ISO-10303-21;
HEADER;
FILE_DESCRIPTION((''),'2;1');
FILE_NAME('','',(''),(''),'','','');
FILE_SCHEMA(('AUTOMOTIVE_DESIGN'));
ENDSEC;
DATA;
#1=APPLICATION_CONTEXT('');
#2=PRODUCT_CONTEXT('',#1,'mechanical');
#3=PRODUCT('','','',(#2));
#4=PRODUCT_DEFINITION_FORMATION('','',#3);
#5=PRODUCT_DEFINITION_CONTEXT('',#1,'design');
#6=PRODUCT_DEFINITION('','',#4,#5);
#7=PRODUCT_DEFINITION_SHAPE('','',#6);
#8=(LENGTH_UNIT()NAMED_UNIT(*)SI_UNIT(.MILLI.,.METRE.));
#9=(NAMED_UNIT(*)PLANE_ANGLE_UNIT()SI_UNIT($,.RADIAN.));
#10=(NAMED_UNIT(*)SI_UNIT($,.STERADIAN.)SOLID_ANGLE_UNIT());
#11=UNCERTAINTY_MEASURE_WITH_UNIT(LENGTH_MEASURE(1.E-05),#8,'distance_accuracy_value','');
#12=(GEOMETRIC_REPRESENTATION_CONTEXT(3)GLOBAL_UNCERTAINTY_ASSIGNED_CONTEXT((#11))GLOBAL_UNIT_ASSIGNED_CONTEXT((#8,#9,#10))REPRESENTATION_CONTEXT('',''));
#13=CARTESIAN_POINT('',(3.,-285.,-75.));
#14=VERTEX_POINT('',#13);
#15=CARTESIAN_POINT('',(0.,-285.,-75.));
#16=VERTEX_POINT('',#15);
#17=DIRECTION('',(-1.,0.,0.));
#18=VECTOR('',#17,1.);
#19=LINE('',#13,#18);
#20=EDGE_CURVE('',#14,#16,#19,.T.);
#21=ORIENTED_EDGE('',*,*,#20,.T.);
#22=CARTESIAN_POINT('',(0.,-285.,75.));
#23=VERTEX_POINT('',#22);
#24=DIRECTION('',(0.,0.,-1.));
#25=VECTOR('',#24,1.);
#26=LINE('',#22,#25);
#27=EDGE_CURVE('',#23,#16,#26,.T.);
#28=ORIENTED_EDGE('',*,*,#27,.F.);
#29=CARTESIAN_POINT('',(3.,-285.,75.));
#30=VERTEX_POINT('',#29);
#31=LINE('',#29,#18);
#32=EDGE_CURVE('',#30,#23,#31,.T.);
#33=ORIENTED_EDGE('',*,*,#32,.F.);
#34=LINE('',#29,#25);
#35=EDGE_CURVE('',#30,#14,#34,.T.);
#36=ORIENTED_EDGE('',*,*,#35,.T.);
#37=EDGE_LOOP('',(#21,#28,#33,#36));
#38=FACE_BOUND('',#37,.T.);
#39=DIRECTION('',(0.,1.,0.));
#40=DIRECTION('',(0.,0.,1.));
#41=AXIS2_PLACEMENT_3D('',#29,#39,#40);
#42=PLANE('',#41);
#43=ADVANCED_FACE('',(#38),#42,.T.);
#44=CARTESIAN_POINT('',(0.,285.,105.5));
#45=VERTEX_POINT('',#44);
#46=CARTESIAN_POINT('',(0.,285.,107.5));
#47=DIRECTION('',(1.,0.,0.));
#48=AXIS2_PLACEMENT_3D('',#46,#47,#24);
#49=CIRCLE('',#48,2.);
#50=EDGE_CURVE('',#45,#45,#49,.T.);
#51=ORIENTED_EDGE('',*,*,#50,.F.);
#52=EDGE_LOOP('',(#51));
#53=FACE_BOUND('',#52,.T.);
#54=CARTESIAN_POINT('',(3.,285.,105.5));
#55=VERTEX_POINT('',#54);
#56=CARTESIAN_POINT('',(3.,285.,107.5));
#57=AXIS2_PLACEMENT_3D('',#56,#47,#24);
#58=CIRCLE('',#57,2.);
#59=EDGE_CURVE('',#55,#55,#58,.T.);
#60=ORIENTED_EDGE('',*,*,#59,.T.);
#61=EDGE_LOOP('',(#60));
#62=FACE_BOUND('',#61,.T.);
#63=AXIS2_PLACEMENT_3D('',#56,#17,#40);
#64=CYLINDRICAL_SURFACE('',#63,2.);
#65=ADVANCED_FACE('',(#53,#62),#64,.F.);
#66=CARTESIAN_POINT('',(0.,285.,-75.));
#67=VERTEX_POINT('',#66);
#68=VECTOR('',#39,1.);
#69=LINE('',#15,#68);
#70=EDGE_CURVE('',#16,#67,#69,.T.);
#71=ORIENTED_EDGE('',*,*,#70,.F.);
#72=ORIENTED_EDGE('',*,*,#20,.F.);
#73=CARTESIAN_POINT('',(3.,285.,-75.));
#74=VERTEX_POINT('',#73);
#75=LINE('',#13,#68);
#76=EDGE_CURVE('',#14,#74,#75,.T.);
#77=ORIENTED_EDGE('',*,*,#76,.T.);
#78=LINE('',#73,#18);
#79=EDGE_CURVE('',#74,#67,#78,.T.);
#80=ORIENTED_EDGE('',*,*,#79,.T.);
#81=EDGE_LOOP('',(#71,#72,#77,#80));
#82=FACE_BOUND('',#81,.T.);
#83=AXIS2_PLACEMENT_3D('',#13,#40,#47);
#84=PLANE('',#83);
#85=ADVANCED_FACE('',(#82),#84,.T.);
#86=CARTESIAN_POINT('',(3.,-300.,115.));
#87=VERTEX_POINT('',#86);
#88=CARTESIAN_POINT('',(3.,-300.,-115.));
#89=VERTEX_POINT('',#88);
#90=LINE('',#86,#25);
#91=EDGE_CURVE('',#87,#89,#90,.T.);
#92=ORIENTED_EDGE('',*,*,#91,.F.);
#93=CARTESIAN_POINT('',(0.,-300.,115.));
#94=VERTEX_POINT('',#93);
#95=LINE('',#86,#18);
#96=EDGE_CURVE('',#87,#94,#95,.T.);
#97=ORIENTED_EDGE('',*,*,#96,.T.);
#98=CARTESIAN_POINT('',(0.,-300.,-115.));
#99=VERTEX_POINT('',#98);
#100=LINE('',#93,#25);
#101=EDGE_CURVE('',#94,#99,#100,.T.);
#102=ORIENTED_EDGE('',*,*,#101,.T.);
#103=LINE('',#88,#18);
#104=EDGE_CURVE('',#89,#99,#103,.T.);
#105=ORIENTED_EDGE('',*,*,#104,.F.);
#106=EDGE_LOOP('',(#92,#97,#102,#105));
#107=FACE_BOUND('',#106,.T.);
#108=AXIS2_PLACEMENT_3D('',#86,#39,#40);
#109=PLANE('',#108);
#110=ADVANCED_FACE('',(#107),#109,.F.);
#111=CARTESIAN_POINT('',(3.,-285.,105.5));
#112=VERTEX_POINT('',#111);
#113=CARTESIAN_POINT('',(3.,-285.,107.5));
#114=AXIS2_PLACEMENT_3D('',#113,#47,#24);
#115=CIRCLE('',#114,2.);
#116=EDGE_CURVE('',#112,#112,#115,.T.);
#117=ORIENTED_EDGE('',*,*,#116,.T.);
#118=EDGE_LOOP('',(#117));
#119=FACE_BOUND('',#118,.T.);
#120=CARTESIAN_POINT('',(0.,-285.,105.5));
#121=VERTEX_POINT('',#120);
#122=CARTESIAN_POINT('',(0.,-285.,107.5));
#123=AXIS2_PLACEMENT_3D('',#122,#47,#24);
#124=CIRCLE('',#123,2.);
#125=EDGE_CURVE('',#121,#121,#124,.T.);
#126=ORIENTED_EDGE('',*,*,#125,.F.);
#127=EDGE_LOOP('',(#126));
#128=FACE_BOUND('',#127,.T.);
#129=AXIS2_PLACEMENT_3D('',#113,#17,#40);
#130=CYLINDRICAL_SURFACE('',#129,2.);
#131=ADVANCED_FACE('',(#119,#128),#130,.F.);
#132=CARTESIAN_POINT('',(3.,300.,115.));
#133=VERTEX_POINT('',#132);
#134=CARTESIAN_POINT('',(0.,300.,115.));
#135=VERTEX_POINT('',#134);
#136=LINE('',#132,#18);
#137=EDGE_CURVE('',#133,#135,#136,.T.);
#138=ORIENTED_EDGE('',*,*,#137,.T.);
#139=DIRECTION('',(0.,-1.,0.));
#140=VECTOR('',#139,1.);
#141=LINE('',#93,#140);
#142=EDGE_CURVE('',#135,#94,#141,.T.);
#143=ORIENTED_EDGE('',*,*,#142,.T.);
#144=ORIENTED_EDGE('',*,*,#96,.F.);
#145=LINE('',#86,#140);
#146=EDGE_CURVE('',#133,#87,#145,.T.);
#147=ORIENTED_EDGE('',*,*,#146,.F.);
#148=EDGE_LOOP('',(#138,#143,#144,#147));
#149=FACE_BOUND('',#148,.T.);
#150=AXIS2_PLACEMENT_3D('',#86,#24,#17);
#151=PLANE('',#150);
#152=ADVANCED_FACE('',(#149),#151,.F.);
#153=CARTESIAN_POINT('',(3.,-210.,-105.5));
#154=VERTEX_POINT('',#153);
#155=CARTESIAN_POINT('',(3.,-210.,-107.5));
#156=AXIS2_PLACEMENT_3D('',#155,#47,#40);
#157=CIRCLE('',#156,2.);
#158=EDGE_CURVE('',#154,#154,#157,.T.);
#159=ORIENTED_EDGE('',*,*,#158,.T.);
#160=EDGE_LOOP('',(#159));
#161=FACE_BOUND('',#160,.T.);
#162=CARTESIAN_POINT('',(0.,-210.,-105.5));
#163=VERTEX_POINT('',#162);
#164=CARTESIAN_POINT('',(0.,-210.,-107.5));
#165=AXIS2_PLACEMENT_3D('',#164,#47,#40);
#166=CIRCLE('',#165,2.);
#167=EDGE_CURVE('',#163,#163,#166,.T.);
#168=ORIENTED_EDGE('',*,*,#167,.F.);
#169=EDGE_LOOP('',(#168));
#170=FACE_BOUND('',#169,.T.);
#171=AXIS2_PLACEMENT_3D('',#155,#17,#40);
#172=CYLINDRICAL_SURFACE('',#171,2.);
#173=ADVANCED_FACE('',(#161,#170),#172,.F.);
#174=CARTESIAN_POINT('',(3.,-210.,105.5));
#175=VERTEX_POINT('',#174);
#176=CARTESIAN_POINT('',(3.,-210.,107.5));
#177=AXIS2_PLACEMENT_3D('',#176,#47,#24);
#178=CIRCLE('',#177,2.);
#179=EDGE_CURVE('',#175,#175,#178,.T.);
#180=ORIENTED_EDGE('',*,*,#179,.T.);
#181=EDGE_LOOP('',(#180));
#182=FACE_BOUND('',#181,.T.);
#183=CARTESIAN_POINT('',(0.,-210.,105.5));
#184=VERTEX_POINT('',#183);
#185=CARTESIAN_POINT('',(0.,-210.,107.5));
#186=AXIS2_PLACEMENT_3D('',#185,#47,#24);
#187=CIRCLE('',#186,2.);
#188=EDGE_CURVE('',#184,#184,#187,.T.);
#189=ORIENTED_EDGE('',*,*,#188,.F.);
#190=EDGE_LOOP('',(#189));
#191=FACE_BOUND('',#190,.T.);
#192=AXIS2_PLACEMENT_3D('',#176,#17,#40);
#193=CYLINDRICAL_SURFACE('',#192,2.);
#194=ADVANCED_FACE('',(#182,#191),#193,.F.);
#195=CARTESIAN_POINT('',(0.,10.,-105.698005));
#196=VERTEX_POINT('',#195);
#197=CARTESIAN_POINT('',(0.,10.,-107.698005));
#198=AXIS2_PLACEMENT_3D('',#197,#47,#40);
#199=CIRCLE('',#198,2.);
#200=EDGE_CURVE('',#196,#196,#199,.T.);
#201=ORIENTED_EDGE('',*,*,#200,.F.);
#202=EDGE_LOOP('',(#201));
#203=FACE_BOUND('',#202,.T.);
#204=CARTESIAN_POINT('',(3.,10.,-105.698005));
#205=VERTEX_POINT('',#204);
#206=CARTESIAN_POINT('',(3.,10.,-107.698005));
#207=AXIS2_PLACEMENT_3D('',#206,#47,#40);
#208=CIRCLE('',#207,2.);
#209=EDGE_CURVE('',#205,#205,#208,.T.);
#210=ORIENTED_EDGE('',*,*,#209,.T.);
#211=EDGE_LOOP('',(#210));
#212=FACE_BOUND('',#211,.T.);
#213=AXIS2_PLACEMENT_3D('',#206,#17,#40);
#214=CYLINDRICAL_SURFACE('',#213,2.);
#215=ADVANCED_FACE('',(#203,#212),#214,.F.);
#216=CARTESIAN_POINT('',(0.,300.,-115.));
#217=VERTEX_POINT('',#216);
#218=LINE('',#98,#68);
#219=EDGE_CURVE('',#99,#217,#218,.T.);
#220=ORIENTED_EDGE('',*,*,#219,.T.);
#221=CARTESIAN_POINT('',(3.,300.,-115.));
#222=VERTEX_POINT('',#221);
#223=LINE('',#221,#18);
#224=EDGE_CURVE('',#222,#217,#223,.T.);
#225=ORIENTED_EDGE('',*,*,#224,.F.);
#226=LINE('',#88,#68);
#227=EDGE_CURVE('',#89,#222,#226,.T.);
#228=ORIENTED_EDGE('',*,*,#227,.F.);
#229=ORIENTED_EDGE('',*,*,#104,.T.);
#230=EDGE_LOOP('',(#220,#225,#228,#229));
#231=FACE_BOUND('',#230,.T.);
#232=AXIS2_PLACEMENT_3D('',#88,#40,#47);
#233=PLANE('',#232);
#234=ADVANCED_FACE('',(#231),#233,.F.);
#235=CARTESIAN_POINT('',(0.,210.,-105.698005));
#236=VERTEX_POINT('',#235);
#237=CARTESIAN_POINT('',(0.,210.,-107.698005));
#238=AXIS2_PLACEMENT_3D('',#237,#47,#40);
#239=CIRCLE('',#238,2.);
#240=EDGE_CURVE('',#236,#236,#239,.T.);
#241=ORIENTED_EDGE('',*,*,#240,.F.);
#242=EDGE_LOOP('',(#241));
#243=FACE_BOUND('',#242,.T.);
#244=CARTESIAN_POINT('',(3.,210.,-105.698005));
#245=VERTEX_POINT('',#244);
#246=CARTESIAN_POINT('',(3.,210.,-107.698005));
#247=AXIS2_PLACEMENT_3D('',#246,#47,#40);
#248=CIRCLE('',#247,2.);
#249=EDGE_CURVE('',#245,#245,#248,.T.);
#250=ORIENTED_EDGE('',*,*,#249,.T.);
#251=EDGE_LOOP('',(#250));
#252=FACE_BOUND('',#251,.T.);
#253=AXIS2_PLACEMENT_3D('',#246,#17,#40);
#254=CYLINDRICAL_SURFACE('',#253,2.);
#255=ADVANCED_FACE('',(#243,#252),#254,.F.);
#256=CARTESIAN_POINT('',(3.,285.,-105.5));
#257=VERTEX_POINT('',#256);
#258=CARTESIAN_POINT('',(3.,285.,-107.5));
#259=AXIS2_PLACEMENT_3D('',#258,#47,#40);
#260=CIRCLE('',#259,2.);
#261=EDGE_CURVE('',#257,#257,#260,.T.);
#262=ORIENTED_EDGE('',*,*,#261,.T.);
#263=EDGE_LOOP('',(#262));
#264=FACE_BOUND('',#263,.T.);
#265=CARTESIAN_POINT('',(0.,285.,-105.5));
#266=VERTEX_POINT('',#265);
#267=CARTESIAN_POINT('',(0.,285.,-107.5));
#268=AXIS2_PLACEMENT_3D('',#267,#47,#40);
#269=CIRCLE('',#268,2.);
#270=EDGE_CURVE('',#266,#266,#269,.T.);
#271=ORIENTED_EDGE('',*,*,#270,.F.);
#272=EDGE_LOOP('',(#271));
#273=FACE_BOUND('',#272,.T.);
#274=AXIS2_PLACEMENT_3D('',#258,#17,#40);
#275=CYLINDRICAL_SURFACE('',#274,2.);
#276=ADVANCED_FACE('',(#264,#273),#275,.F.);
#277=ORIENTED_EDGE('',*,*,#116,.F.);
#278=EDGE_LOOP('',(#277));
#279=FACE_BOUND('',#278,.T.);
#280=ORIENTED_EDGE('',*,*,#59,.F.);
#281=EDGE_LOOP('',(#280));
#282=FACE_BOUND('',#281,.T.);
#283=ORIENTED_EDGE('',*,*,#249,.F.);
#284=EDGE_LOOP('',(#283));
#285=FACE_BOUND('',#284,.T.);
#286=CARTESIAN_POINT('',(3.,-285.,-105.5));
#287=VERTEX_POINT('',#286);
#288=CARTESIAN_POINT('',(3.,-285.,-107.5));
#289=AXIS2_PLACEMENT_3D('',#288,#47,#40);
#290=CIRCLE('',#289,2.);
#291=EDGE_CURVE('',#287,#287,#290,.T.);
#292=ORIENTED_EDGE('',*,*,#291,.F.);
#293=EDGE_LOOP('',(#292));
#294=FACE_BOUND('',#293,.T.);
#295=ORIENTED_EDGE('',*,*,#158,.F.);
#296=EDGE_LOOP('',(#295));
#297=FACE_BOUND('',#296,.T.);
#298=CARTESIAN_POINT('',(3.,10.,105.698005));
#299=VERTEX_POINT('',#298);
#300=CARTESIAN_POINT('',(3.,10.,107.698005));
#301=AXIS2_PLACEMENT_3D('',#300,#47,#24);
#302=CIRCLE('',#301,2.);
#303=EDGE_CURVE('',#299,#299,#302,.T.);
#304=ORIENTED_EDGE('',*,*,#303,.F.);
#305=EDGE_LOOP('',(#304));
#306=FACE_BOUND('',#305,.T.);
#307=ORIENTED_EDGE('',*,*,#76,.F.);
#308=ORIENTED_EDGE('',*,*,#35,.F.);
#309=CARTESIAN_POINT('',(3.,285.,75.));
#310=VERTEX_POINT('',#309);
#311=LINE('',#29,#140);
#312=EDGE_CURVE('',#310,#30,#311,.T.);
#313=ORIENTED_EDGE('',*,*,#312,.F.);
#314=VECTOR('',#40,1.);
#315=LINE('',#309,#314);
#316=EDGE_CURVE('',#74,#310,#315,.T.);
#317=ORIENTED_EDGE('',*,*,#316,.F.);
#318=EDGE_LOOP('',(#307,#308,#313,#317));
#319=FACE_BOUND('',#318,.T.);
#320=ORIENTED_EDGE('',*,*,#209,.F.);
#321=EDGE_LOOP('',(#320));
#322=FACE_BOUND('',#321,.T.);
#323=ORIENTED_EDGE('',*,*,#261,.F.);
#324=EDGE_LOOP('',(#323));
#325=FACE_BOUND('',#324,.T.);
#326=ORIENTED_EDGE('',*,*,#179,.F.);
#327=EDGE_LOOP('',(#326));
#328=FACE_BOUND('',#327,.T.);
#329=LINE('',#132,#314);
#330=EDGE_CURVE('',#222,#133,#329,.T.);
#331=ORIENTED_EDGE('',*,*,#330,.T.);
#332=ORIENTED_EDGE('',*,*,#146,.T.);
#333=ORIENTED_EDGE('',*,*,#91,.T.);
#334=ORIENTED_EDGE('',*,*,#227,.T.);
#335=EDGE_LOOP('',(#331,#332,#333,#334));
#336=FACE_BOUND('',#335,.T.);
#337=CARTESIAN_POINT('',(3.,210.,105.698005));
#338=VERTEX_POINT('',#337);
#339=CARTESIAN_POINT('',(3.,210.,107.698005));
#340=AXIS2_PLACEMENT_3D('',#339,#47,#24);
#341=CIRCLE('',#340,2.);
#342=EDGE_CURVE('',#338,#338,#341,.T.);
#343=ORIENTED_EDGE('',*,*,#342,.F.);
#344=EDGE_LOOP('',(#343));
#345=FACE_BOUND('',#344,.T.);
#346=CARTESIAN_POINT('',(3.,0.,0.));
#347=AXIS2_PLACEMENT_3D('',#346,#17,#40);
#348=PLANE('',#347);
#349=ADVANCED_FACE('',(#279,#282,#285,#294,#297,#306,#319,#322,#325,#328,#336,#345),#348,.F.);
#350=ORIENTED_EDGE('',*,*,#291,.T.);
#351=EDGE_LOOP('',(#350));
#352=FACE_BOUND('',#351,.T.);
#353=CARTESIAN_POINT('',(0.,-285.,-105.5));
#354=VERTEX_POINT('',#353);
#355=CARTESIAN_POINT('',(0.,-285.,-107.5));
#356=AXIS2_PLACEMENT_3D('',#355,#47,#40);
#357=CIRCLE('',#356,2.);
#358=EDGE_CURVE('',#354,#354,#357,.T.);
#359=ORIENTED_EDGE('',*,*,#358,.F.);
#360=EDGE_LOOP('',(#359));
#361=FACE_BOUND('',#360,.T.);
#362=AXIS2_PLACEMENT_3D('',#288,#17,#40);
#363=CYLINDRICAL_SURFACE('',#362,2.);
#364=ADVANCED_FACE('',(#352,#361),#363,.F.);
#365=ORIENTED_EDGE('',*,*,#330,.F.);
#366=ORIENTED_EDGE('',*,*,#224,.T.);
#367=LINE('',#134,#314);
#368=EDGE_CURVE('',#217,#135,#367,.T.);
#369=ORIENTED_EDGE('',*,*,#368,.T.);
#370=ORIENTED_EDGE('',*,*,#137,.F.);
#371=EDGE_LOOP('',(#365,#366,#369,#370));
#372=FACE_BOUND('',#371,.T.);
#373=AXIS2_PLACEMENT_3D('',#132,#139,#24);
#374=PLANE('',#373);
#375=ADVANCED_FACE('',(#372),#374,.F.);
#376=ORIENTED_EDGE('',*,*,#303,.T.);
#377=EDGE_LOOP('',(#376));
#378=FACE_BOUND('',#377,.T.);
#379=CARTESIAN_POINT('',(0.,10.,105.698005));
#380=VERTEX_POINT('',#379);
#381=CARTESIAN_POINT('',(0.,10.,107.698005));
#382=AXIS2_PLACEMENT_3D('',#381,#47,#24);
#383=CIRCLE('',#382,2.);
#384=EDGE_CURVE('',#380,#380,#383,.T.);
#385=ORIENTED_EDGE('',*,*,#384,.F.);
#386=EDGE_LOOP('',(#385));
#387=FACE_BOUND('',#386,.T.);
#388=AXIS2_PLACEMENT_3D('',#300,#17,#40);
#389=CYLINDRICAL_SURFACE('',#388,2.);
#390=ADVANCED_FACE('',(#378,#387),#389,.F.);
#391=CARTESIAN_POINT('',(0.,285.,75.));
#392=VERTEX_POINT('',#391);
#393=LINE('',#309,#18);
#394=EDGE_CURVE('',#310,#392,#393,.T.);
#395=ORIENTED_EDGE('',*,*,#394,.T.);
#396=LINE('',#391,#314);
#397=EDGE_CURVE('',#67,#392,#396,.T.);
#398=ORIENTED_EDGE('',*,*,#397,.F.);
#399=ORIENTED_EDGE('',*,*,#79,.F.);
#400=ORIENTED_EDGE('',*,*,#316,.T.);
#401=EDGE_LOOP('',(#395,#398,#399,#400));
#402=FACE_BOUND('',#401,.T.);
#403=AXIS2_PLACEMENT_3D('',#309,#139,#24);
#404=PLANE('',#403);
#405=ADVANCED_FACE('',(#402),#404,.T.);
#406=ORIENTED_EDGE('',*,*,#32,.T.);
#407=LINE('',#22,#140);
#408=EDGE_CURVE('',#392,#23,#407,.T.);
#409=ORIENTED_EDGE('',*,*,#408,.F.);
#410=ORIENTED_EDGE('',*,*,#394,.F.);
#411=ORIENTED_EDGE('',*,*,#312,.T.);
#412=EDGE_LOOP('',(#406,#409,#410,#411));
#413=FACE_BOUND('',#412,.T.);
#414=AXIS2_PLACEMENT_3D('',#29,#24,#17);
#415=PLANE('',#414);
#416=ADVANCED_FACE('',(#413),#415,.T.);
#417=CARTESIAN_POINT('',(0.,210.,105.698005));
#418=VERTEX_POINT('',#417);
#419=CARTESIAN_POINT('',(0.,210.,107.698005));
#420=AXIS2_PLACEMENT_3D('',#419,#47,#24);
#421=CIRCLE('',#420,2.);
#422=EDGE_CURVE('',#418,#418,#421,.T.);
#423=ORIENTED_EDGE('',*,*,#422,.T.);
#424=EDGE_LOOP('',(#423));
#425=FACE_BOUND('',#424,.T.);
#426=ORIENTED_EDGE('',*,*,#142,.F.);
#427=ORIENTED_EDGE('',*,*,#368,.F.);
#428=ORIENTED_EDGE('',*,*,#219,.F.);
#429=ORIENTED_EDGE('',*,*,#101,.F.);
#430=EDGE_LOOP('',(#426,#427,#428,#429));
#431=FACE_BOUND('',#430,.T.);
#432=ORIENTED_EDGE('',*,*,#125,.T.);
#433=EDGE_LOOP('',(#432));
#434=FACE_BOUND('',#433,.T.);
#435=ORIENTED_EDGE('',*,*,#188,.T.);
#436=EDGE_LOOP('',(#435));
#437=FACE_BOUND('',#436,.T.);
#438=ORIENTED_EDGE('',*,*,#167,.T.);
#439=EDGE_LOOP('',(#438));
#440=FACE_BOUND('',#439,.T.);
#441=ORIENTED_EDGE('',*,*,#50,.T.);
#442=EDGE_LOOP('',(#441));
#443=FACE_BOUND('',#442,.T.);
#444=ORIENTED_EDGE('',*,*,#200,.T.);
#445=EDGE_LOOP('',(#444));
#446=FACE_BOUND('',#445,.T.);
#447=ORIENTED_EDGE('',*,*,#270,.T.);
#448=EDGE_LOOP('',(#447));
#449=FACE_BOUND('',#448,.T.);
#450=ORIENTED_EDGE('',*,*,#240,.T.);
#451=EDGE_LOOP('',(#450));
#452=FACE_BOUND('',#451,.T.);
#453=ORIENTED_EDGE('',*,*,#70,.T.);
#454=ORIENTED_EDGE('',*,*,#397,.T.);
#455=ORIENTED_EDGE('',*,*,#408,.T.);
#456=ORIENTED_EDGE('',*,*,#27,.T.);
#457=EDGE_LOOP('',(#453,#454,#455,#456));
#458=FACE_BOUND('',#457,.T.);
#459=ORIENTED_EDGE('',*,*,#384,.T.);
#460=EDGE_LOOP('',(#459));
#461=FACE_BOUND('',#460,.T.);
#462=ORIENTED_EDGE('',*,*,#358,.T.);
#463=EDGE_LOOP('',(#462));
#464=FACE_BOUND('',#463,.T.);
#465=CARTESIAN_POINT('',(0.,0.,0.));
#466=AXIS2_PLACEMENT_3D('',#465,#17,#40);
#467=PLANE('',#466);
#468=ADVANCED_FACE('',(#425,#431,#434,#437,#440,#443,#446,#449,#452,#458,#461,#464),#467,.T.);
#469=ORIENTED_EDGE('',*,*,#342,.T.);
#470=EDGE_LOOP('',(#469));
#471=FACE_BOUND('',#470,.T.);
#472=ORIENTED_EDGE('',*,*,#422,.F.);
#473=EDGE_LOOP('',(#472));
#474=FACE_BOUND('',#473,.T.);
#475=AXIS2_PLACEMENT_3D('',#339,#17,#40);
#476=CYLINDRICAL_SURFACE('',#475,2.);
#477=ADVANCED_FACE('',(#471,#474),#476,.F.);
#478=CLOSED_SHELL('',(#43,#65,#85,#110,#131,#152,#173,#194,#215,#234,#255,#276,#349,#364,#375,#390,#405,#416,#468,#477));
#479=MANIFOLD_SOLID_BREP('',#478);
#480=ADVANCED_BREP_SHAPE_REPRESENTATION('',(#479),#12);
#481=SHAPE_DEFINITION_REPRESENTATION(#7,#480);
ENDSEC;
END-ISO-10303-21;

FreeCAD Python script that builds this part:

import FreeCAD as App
import Part
import Sketcher

doc = App.newDocument("Part")
body = doc.addObject("PartDesign::Body", "Body")

# Sketch on YZ plane
sketch1 = doc.addObject("Sketcher::SketchObject", "Sketch")
body.addObject(sketch1)
sketch1.AttachmentSupport = (doc.YZ_Plane, [""])
sketch1.MapMode = "FlatFace"
sketch1.addGeometry([
    Part.LineSegment(App.Vector(300, 115, 0), App.Vector(-300, 115, 0)),  # 0
    Part.LineSegment(App.Vector(-300, 115, 0), App.Vector(-300, -115, 0)),  # 1
    Part.LineSegment(App.Vector(-300, -115, 0), App.Vector(300, -115, 0)),  # 2
    Part.LineSegment(App.Vector(300, -115, 0), App.Vector(300, 115, 0)),  # 3
    Part.Circle(App.Vector(-285, 107.5, 0), App.Vector(0, 0, 1), 2),  # 4
    Part.Circle(App.Vector(-210, 107.5, 0), App.Vector(0, 0, 1), 2),  # 5
    Part.Circle(App.Vector(-285, -107.5, 0), App.Vector(0, 0, 1), 2),  # 6
    Part.Circle(App.Vector(-210, -107.5, 0), App.Vector(0, 0, 1), 2),  # 7
    Part.Circle(App.Vector(10, 107.7, 0), App.Vector(0, 0, 1), 2),  # 8
    Part.Circle(App.Vector(210, 107.7, 0), App.Vector(0, 0, 1), 2),  # 9
    Part.Circle(App.Vector(285, 107.5, 0), App.Vector(0, 0, 1), 2),  # 10
    Part.LineSegment(App.Vector(-285, -75, 0), App.Vector(-285, 75, 0)),  # 11
    Part.LineSegment(App.Vector(-285, 75, 0), App.Vector(285, 75, 0)),  # 12
    Part.LineSegment(App.Vector(285, 75, 0), App.Vector(285, -75, 0)),  # 13
    Part.LineSegment(App.Vector(285, -75, 0), App.Vector(-285, -75, 0)),  # 14
    Part.Circle(App.Vector(10, -107.7, 0), App.Vector(0, 0, 1), 2),  # 15
    Part.Circle(App.Vector(210, -107.7, 0), App.Vector(0, 0, 1), 2),  # 16
    Part.Circle(App.Vector(285, -107.5, 0), App.Vector(0, 0, 1), 2),  # 17
], False)
sketch1.addConstraint([
    Sketcher.Constraint("Coincident", 0, 2, 1, 1),
    Sketcher.Constraint("Coincident", 1, 2, 2, 1),
    Sketcher.Constraint("Coincident", 2, 2, 3, 1),
    Sketcher.Constraint("Coincident", 3, 2, 0, 1),
    Sketcher.Constraint("Coincident", 11, 2, 12, 1),
    Sketcher.Constraint("Coincident", 12, 2, 13, 1),
    Sketcher.Constraint("Coincident", 13, 2, 14, 1),
    Sketcher.Constraint("Coincident", 14, 2, 11, 1),
    Sketcher.Constraint("Horizontal", 0),
    Sketcher.Constraint("Vertical", 1),
    Sketcher.Constraint("Horizontal", 2),
    Sketcher.Constraint("Vertical", 3),
    Sketcher.Constraint("Vertical", 11),
    Sketcher.Constraint("Horizontal", 12),
    Sketcher.Constraint("Vertical", 13),
    Sketcher.Constraint("Horizontal", 14),
    Sketcher.Constraint("Equal", 4, 5),
    Sketcher.Constraint("Equal", 5, 6),
    Sketcher.Constraint("Equal", 6, 7),
    Sketcher.Constraint("Equal", 7, 8),
    Sketcher.Constraint("Equal", 8, 9),
    Sketcher.Constraint("Equal", 9, 10),
    Sketcher.Constraint("Equal", 10, 15),
    Sketcher.Constraint("Equal", 15, 16),
    Sketcher.Constraint("Equal", 16, 17),
    Sketcher.Constraint("Symmetric", 6, 3, 10, 3, -1, 1),
    Sketcher.Constraint("Symmetric", 4, 3, 17, 3, -1, 1),
    Sketcher.Constraint("Symmetric", 0, 2, 2, 2, -1, 1),
    Sketcher.Constraint("Symmetric", 11, 2, 13, 2, -1, 1),
    Sketcher.Constraint("Symmetric", 4, 3, 10, 3, -2),
    Sketcher.Constraint("Symmetric", 5, 3, 7, 3, -1),
    Sketcher.Constraint("Symmetric", 8, 3, 15, 3, -1),
    Sketcher.Constraint("Symmetric", 9, 3, 16, 3, -1),
    Sketcher.Constraint("Horizontal", 4, 3, 5, 3),
    Sketcher.Constraint("Horizontal", 8, 3, 9, 3),
    Sketcher.Constraint("Vertical", 6, 3, 11, 2),
    Sketcher.Constraint("Diameter", 4, 4.0),
    Sketcher.Constraint("DistanceX", 0, 2, 0, 1, 600.0),
    Sketcher.Constraint("DistanceX", 12, 1, 12, 2, 570.0),
    Sketcher.Constraint("DistanceY", 1, 2, 1, 1, 230.0),
    Sketcher.Constraint("DistanceY", 11, 1, 11, 2, 150.0),
    Sketcher.Constraint("DistanceX", 5, 3, -1, 1, 210.0),
    Sketcher.Constraint("DistanceX", -1, 1, 8, 3, 10.0),
    Sketcher.Constraint("DistanceX", -1, 1, 9, 3, 210.0),
    Sketcher.Constraint("DistanceY", 6, 3, 4, 3, 215.0),
    Sketcher.Constraint("DistanceY", 15, 3, 8, 3, 215.39601),
])
pad1 = doc.addObject("PartDesign::Pad", "Pad")
body.addObject(pad1)
pad1.Profile = sketch1
pad1.Length = 3

doc.recompute()
